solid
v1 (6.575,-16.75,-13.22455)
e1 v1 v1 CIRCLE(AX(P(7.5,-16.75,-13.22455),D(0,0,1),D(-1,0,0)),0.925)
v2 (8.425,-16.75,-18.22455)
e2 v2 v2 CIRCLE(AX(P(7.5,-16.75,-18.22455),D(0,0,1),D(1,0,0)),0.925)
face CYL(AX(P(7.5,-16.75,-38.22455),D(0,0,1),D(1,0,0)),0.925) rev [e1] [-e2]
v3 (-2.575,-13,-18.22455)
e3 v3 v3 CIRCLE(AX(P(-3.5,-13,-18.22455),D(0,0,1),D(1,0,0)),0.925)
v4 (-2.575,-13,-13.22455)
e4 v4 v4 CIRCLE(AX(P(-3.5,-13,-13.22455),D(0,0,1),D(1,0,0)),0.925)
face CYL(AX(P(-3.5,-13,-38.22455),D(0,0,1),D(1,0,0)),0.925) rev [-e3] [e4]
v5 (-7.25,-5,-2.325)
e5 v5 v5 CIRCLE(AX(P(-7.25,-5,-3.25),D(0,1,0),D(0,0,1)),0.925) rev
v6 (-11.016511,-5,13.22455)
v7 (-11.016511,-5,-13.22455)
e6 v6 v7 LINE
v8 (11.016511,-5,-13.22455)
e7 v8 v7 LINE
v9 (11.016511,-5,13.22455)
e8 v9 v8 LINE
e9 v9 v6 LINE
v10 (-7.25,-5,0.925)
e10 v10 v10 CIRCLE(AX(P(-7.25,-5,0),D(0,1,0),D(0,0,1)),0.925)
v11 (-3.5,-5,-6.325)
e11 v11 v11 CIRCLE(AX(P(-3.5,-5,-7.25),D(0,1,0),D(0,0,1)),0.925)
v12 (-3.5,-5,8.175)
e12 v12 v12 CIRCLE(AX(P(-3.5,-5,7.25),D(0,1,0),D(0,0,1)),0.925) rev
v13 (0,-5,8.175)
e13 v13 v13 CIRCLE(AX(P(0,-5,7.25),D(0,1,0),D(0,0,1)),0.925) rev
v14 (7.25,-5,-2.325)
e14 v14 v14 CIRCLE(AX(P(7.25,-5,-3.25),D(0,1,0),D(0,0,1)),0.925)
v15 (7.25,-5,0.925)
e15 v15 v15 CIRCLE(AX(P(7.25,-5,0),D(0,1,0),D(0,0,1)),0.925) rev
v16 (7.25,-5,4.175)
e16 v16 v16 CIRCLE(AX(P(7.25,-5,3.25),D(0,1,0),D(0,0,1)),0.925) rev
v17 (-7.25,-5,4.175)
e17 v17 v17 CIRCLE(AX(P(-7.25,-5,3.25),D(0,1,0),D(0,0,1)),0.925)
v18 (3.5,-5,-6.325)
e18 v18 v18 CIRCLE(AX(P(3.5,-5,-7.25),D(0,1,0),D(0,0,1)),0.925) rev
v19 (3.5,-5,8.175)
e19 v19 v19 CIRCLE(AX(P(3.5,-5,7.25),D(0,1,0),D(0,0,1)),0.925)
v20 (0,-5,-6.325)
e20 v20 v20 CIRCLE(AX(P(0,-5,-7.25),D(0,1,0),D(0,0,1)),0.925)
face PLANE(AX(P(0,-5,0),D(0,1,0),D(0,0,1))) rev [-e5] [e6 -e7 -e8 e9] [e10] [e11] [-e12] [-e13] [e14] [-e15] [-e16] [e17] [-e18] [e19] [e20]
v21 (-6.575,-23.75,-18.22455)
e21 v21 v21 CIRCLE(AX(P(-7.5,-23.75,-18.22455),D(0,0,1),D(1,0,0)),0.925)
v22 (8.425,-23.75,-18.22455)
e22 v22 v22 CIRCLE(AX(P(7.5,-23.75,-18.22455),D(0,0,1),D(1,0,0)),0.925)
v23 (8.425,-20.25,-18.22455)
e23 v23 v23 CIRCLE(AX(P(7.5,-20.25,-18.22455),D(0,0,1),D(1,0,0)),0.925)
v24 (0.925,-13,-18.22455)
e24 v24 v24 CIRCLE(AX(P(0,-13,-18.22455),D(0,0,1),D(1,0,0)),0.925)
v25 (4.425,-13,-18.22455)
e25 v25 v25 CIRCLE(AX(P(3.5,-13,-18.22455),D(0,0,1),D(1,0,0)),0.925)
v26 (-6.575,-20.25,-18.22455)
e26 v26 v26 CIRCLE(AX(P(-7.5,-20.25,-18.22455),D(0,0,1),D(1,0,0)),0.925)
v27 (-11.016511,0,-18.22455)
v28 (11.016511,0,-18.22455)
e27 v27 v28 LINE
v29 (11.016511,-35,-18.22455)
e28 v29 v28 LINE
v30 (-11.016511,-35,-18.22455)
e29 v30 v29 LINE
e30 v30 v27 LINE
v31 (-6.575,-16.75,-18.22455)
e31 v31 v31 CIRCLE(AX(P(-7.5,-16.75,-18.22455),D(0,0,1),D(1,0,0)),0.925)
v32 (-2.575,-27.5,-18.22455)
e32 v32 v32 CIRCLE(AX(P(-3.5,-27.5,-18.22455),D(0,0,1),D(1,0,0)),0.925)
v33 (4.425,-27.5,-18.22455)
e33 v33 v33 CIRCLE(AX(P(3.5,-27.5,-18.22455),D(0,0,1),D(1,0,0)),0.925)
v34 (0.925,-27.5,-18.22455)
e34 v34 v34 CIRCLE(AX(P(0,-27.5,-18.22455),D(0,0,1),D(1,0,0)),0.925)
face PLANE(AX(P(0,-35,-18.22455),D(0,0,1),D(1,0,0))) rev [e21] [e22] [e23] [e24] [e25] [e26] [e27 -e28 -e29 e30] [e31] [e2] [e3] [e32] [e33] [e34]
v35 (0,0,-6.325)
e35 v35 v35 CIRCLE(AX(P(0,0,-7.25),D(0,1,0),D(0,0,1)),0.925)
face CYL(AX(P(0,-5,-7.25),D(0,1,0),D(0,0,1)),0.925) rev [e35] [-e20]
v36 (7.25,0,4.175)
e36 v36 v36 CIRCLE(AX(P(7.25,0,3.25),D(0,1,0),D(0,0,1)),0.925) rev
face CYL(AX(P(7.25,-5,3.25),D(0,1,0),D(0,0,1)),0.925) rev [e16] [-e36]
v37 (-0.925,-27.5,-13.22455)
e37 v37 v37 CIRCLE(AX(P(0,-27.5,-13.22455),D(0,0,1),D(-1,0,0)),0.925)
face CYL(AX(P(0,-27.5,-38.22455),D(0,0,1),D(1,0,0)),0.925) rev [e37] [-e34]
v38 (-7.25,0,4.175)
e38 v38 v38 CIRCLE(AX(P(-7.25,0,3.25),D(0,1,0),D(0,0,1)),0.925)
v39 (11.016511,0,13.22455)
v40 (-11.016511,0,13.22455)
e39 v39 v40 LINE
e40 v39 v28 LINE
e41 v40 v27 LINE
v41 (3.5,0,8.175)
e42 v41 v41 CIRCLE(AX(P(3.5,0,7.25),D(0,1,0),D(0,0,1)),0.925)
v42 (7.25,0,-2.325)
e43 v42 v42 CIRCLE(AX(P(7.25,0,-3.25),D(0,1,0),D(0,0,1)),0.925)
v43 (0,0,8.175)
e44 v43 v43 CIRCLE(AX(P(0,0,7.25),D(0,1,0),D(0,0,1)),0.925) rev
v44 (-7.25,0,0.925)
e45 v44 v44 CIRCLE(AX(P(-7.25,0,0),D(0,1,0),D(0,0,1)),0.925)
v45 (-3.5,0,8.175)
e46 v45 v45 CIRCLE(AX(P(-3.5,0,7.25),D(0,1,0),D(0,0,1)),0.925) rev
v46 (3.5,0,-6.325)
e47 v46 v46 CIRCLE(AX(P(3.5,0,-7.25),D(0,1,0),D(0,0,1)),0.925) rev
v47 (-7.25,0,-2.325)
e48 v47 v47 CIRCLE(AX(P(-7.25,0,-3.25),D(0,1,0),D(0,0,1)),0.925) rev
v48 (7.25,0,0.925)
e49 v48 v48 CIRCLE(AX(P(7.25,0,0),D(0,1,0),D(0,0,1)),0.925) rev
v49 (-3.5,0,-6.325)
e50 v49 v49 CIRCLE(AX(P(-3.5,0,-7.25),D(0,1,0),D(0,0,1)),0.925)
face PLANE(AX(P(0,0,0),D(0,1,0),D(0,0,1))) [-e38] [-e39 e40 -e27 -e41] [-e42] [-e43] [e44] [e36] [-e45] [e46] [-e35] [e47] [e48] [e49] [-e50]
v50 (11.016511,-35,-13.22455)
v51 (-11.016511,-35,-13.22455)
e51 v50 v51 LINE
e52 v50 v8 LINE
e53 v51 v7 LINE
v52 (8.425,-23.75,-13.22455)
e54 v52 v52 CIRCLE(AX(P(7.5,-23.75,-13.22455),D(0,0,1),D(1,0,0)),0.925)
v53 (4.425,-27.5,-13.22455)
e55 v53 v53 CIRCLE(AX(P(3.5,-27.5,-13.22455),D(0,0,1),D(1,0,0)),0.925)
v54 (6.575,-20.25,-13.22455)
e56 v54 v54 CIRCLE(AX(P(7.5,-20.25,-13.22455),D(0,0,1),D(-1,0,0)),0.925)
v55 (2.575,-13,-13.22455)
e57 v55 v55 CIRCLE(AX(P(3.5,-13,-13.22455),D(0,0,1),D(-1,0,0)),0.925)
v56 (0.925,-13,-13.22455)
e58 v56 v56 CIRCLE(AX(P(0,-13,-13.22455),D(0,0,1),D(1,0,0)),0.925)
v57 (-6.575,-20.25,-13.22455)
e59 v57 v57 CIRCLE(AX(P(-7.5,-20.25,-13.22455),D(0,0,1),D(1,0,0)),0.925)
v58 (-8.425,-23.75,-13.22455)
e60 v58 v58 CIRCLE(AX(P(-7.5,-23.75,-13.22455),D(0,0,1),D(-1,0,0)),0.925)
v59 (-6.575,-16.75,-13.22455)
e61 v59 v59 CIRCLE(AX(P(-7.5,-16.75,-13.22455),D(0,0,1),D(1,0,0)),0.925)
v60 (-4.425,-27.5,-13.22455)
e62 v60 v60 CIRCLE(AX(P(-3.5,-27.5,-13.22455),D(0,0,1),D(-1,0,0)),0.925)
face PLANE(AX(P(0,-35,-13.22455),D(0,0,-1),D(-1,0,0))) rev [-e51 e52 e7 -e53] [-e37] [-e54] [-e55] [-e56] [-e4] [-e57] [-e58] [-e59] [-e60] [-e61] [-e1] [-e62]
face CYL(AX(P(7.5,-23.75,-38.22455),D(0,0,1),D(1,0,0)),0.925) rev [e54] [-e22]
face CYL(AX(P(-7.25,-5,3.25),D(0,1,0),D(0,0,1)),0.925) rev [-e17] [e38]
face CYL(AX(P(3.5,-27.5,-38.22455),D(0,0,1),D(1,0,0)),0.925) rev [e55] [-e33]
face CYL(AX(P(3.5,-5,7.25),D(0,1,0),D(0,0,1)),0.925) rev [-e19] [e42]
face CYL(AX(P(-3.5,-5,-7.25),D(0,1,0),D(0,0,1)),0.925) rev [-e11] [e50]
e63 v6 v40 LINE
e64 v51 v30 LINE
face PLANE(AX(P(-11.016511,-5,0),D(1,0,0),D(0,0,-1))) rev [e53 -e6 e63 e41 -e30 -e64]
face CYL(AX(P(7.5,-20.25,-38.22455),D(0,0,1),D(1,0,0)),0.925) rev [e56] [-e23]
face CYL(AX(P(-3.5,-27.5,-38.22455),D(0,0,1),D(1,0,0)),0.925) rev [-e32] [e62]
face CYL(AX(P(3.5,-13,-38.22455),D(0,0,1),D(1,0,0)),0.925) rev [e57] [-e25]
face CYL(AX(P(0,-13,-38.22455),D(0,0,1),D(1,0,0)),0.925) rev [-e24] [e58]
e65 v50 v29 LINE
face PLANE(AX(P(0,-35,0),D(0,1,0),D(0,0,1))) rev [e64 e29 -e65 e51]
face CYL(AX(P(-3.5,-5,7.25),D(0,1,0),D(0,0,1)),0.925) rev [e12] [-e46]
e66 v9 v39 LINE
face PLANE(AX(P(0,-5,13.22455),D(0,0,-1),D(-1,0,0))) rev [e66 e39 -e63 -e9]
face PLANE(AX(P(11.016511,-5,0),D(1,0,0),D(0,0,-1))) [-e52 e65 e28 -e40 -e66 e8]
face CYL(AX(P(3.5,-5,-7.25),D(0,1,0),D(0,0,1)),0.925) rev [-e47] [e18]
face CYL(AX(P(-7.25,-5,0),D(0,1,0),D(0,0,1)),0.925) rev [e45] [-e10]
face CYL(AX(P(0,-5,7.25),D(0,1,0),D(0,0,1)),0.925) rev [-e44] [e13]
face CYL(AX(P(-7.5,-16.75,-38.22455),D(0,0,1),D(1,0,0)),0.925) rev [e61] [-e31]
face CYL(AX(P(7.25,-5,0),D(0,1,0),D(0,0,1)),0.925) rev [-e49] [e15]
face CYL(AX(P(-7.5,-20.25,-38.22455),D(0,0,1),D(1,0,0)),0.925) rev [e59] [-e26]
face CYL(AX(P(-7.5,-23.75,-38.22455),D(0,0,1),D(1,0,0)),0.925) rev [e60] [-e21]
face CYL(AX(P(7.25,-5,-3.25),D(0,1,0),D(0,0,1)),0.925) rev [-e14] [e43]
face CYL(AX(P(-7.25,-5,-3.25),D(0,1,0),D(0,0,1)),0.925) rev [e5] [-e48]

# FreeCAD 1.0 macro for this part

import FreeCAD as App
import Part
import Sketcher
Q = App.Units.Quantity

doc = App.newDocument("Part")
body = doc.addObject("PartDesign::Body", "Body")

sketch1 = body.newObject("Sketcher::SketchObject", "Sketch")
sketch1.AttachmentSupport = (doc.getObject("XZ_Plane"), [""])
sketch1.MapMode = "FlatFace"
sketch1.addGeometry([
    Part.LineSegment(App.Vector(-11, -13.2, 0), App.Vector(-11, 13.2, 0)),
    Part.LineSegment(App.Vector(-11, 13.2, 0), App.Vector(11, 13.2, 0)),
    Part.LineSegment(App.Vector(11, 13.2, 0), App.Vector(11, -13.2, 0)),
    Part.LineSegment(App.Vector(11, -13.2, 0), App.Vector(-11, -13.2, 0)),
    Part.Circle(App.Vector(-3.5, 7.2, 0), App.Vector(0, 0, 1), 0.9),
    Part.Circle(App.Vector(-7.2, 3.2, 0), App.Vector(0, 0, 1), 0.9),
    Part.Circle(App.Vector(0, 7.2, 0), App.Vector(0, 0, 1), 0.9),
    Part.Circle(App.Vector(3.5, 7.2, 0), App.Vector(0, 0, 1), 0.9),
    Part.Circle(App.Vector(7.2, 3.2, 0), App.Vector(0, 0, 1), 0.9),
    Part.Circle(App.Vector(-7.2, 0, 0), App.Vector(0, 0, 1), 0.9),
    Part.Circle(App.Vector(-7.2, -3.2, 0), App.Vector(0, 0, 1), 0.9),
    Part.Circle(App.Vector(-3.5, -7.2, 0), App.Vector(0, 0, 1), 0.9),
    Part.Circle(App.Vector(7.2, 0, 0), App.Vector(0, 0, 1), 0.9),
    Part.Circle(App.Vector(7.2, -3.2, 0), App.Vector(0, 0, 1), 0.9),
    Part.Circle(App.Vector(0, -7.2, 0), App.Vector(0, 0, 1), 0.9),
    Part.Circle(App.Vector(3.5, -7.2, 0), App.Vector(0, 0, 1), 0.9),
], False)
sketch1.addConstraint([
    Sketcher.Constraint("Coincident", 0, 2, 1, 1),
    Sketcher.Constraint("Coincident", 1, 2, 2, 1),
    Sketcher.Constraint("Coincident", 2, 2, 3, 1),
    Sketcher.Constraint("Coincident", 3, 2, 0, 1),
    Sketcher.Constraint("Vertical", 0),
    Sketcher.Constraint("Horizontal", 1),
    Sketcher.Constraint("Vertical", 2),
    Sketcher.Constraint("Horizontal", 3),
    Sketcher.Constraint("Equal", 4, 5),
    Sketcher.Constraint("Equal", 5, 6),
    Sketcher.Constraint("Equal", 6, 7),
    Sketcher.Constraint("Equal", 7, 8),
    Sketcher.Constraint("Equal", 8, 9),
    Sketcher.Constraint("Equal", 9, 10),
    Sketcher.Constraint("Equal", 10, 11),
    Sketcher.Constraint("Equal", 11, 12),
    Sketcher.Constraint("Equal", 12, 13),
    Sketcher.Constraint("Equal", 13, 14),
    Sketcher.Constraint("Equal", 14, 15),
    Sketcher.Constraint("Symmetric", 8, 3, 10, 3, -1, 1),
    Sketcher.Constraint("Symmetric", 7, 3, 11, 3, -1, 1),
    Sketcher.Constraint("Symmetric", 9, 3, 12, 3, -1, 1),
    Sketcher.Constraint("Symmetric", 5, 3, 13, 3, -1, 1),
    Sketcher.Constraint("Symmetric", 6, 3, 14, 3, -1, 1),
    Sketcher.Constraint("Symmetric", 4, 3, 15, 3, -1, 1),
    Sketcher.Constraint("Symmetric", 0, 2, 2, 2, -1, 1),
    Sketcher.Constraint("Symmetric", 4, 3, 7, 3, -2),
    Sketcher.Constraint("Symmetric", 5, 3, 8, 3, -2),
    Sketcher.Constraint("PointOnObject", 6, 3, -2),
    Sketcher.Constraint("PointOnObject", 9, 3, -1),
    Sketcher.Constraint("Horizontal", 4, 3, 6, 3),
    Sketcher.Constraint("Vertical", 5, 3, 9, 3),
    Sketcher.Constraint("Diameter", 4, Q("1.85 mm")),
    Sketcher.Constraint("DistanceY", 5, 3, 4, 3, Q("4 mm")),
    Sketcher.Constraint("DistanceX", 4, 3, 7, 3, Q("7 mm")),
    Sketcher.Constraint("DistanceX", 5, 3, 8, 3, Q("14.5 mm")),
    Sketcher.Constraint("DistanceY", 10, 3, 5, 3, Q("6.5 mm")),
    Sketcher.Constraint("DistanceY", 0, 1, 0, 2, Q("26.449101 mm")),
    Sketcher.Constraint("DistanceX", 1, 1, 1, 2, Q("22.033021 mm")),
])
pad1 = body.newObject("PartDesign::Pad", "Pad")
pad1.Profile = sketch1
pad1.Length = 5

sketch2 = body.newObject("Sketcher::SketchObject", "Sketch001")
sketch2.AttachmentSupport = (doc.getObject("XZ_Plane"), [""])
sketch2.MapMode = "FlatFace"
sketch2.addGeometry([
    Part.LineSegment(App.Vector(-11, -18, 0), App.Vector(-11, -13, 0)),
    Part.LineSegment(App.Vector(-11, -13, 0), App.Vector(11, -13, 0)),
    Part.LineSegment(App.Vector(11, -13, 0), App.Vector(11, -18, 0)),
    Part.LineSegment(App.Vector(11, -18, 0), App.Vector(-11, -18, 0)),
], False)
sketch2.addConstraint([
    Sketcher.Constraint("Coincident", 0, 2, 1, 1),
    Sketcher.Constraint("Coincident", 1, 2, 2, 1),
    Sketcher.Constraint("Coincident", 2, 2, 3, 1),
    Sketcher.Constraint("Coincident", 3, 2, 0, 1),
    Sketcher.Constraint("Vertical", 0),
    Sketcher.Constraint("Horizontal", 1),
    Sketcher.Constraint("Vertical", 2),
    Sketcher.Constraint("Horizontal", 3),
    Sketcher.Constraint("DistanceY", 0, 1, 0, 2, Q("5 mm")),
    Sketcher.Constraint("DistanceX", 1, 1, 1, 2, Q("22.033021 mm")),
    Sketcher.Constraint("DistanceX", 0, 2, -1, 1, Q("11.016511 mm")),
    Sketcher.Constraint("DistanceY", 0, 2, -1, 1, Q("13.22455 mm")),
])
pad2 = body.newObject("PartDesign::Pad", "Pad001")
pad2.Profile = sketch2
pad2.Length = 35

sketch3 = body.newObject("Sketcher::SketchObject", "Sketch002")
sketch3.AttachmentSupport = (doc.getObject("XY_Plane"), [""])
sketch3.MapMode = "FlatFace"
sketch3.AttachmentOffset = App.Placement(App.Vector(0, 0, -13.22455), App.Rotation())
sketch3.addGeometry([
    Part.Circle(App.Vector(0, -13, 0), App.Vector(0, 0, 1), 0.9),
    Part.Circle(App.Vector(-3.5, -13, 0), App.Vector(0, 0, 1), 0.9),
    Part.Circle(App.Vector(3.5, -13, 0), App.Vector(0, 0, 1), 0.9),
    Part.Circle(App.Vector(3.5, -27.5, 0), App.Vector(0, 0, 1), 0.9),
    Part.Circle(App.Vector(0, -27.5, 0), App.Vector(0, 0, 1), 0.9),
    Part.Circle(App.Vector(-3.5, -27.5, 0), App.Vector(0, 0, 1), 0.9),
    Part.Circle(App.Vector(-7.5, -20.2, 0), App.Vector(0, 0, 1), 0.9),
    Part.Circle(App.Vector(-7.5, -16.8, 0), App.Vector(0, 0, 1), 0.9),
    Part.Circle(App.Vector(-7.5, -23.8, 0), App.Vector(0, 0, 1), 0.9),
    Part.Circle(App.Vector(7.5, -16.8, 0), App.Vector(0, 0, 1), 0.9),
    Part.Circle(App.Vector(7.5, -20.2, 0), App.Vector(0, 0, 1), 0.9),
    Part.Circle(App.Vector(7.5, -23.8, 0), App.Vector(0, 0, 1), 0.9),
], False)
sketch3.addConstraint([
    Sketcher.Constraint("Equal", 0, 1),
    Sketcher.Constraint("Equal", 1, 2),
    Sketcher.Constraint("Equal", 2, 3),
    Sketcher.Constraint("Equal", 3, 4),
    Sketcher.Constraint("Equal", 4, 5),
    Sketcher.Constraint("Equal", 5, 6),
    Sketcher.Constraint("Equal", 6, 7),
    Sketcher.Constraint("Equal", 7, 8),
    Sketcher.Constraint("Equal", 8, 9),
    Sketcher.Constraint("Equal", 9, 10),
    Sketcher.Constraint("Equal", 10, 11),
    Sketcher.Constraint("Symmetric", 1, 3, 2, 3, -2),
    Sketcher.Constraint("Symmetric", 3, 3, 5, 3, -2),
    Sketcher.Constraint("Symmetric", 7, 3, 9, 3, -2),
    Sketcher.Constraint("Symmetric", 6, 3, 10, 3, -2),
    Sketcher.Constraint("Symmetric", 8, 3, 11, 3, -2),
    Sketcher.Constraint("PointOnObject", 0, 3, -2),
    Sketcher.Constraint("PointOnObject", 4, 3, -2),
    Sketcher.Constraint("Horizontal", 0, 3, 1, 3),
    Sketcher.Constraint("Horizontal", 3, 3, 4, 3),
    Sketcher.Constraint("Vertical", 2, 3, 3, 3),
    Sketcher.Constraint("Vertical", 6, 3, 7, 3),
    Sketcher.Constraint("Vertical", 7, 3, 8, 3),
    Sketcher.Constraint("Diameter", 0, Q("1.85 mm")),
    Sketcher.Constraint("DistanceY", 0, 3, -1, 1, Q("13 mm")),
    Sketcher.Constraint("DistanceX", 1, 3, 2, 3, Q("7 mm")),
    Sketcher.Constraint("DistanceX", 6, 3, 1, 3, Q("4 mm")),
    Sketcher.Constraint("DistanceY", 8, 3, 7, 3, Q("7 mm")),
    Sketcher.Constraint("DistanceY", 3, 3, -1, 1, Q("27.5 mm")),
    Sketcher.Constraint("DistanceY", 6, 3, 7, 3, Q("3.5 mm")),
    Sketcher.Constraint("DistanceY", 6, 3, -1, 1, Q("20.25 mm")),
])
pocket1 = body.newObject("PartDesign::Pocket", "Pocket")
pocket1.Profile = sketch3
pocket1.Length = 25

doc.recompute()
